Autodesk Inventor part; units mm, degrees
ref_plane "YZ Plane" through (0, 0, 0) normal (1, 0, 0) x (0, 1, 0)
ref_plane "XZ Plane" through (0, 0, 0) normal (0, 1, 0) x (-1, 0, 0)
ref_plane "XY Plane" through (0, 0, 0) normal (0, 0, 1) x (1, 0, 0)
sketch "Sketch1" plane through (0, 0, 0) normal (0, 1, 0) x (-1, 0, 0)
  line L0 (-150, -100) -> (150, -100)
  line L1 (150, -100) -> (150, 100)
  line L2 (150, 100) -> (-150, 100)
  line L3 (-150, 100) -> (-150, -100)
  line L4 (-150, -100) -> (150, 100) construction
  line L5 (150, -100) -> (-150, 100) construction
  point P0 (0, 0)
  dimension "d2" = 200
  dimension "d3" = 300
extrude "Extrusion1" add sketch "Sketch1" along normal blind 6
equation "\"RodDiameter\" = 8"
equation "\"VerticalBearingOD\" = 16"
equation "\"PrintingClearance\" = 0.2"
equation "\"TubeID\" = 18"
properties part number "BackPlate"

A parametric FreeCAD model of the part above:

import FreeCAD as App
import Part
import Sketcher


def add_polygon(sketch, points):
    """Adds a closed chain of lines whose ends are joined by coincident constraints."""
    first, n = sketch.GeometryCount, len(points)
    for a, b in zip(points, points[1:] + points[:1]):
        sketch.addGeometry(Part.LineSegment(App.Vector(*a, 0), App.Vector(*b, 0)), False)
    for i in range(n):
        sketch.addConstraint(Sketcher.Constraint("Coincident", first + i, 2, first + (i + 1) % n, 1))

doc = App.newDocument("Part")
body = doc.addObject("PartDesign::Body", "Body")

# Sketch on XZ plane
sketch1 = body.newObject("Sketcher::SketchObject", "Sketch")
sketch1.AttachmentSupport = (doc.getObject("XZ_Plane"), [""])
sketch1.MapMode = "FlatFace"
add_polygon(sketch1, [(150, 100), (150, -100), (-150, -100), (-150, 100)])  # lines 0-3
sketch1.addConstraint([
    Sketcher.Constraint("Vertical", 0),
    Sketcher.Constraint("Horizontal", 1),
    Sketcher.Constraint("Vertical", 2),
    Sketcher.Constraint("Horizontal", 3),
    Sketcher.Constraint("Symmetric", 0, 2, 2, 2, -1, 1),
    Sketcher.Constraint("DistanceX", 1, 2, 1, 1, 300.0),
    Sketcher.Constraint("DistanceY", 0, 2, 0, 1, 200.0),
])
pad1 = body.newObject("PartDesign::Pad", "Pad")
pad1.Profile = sketch1
pad1.Length = 6
pad1.Reversed = True

doc.recompute()
